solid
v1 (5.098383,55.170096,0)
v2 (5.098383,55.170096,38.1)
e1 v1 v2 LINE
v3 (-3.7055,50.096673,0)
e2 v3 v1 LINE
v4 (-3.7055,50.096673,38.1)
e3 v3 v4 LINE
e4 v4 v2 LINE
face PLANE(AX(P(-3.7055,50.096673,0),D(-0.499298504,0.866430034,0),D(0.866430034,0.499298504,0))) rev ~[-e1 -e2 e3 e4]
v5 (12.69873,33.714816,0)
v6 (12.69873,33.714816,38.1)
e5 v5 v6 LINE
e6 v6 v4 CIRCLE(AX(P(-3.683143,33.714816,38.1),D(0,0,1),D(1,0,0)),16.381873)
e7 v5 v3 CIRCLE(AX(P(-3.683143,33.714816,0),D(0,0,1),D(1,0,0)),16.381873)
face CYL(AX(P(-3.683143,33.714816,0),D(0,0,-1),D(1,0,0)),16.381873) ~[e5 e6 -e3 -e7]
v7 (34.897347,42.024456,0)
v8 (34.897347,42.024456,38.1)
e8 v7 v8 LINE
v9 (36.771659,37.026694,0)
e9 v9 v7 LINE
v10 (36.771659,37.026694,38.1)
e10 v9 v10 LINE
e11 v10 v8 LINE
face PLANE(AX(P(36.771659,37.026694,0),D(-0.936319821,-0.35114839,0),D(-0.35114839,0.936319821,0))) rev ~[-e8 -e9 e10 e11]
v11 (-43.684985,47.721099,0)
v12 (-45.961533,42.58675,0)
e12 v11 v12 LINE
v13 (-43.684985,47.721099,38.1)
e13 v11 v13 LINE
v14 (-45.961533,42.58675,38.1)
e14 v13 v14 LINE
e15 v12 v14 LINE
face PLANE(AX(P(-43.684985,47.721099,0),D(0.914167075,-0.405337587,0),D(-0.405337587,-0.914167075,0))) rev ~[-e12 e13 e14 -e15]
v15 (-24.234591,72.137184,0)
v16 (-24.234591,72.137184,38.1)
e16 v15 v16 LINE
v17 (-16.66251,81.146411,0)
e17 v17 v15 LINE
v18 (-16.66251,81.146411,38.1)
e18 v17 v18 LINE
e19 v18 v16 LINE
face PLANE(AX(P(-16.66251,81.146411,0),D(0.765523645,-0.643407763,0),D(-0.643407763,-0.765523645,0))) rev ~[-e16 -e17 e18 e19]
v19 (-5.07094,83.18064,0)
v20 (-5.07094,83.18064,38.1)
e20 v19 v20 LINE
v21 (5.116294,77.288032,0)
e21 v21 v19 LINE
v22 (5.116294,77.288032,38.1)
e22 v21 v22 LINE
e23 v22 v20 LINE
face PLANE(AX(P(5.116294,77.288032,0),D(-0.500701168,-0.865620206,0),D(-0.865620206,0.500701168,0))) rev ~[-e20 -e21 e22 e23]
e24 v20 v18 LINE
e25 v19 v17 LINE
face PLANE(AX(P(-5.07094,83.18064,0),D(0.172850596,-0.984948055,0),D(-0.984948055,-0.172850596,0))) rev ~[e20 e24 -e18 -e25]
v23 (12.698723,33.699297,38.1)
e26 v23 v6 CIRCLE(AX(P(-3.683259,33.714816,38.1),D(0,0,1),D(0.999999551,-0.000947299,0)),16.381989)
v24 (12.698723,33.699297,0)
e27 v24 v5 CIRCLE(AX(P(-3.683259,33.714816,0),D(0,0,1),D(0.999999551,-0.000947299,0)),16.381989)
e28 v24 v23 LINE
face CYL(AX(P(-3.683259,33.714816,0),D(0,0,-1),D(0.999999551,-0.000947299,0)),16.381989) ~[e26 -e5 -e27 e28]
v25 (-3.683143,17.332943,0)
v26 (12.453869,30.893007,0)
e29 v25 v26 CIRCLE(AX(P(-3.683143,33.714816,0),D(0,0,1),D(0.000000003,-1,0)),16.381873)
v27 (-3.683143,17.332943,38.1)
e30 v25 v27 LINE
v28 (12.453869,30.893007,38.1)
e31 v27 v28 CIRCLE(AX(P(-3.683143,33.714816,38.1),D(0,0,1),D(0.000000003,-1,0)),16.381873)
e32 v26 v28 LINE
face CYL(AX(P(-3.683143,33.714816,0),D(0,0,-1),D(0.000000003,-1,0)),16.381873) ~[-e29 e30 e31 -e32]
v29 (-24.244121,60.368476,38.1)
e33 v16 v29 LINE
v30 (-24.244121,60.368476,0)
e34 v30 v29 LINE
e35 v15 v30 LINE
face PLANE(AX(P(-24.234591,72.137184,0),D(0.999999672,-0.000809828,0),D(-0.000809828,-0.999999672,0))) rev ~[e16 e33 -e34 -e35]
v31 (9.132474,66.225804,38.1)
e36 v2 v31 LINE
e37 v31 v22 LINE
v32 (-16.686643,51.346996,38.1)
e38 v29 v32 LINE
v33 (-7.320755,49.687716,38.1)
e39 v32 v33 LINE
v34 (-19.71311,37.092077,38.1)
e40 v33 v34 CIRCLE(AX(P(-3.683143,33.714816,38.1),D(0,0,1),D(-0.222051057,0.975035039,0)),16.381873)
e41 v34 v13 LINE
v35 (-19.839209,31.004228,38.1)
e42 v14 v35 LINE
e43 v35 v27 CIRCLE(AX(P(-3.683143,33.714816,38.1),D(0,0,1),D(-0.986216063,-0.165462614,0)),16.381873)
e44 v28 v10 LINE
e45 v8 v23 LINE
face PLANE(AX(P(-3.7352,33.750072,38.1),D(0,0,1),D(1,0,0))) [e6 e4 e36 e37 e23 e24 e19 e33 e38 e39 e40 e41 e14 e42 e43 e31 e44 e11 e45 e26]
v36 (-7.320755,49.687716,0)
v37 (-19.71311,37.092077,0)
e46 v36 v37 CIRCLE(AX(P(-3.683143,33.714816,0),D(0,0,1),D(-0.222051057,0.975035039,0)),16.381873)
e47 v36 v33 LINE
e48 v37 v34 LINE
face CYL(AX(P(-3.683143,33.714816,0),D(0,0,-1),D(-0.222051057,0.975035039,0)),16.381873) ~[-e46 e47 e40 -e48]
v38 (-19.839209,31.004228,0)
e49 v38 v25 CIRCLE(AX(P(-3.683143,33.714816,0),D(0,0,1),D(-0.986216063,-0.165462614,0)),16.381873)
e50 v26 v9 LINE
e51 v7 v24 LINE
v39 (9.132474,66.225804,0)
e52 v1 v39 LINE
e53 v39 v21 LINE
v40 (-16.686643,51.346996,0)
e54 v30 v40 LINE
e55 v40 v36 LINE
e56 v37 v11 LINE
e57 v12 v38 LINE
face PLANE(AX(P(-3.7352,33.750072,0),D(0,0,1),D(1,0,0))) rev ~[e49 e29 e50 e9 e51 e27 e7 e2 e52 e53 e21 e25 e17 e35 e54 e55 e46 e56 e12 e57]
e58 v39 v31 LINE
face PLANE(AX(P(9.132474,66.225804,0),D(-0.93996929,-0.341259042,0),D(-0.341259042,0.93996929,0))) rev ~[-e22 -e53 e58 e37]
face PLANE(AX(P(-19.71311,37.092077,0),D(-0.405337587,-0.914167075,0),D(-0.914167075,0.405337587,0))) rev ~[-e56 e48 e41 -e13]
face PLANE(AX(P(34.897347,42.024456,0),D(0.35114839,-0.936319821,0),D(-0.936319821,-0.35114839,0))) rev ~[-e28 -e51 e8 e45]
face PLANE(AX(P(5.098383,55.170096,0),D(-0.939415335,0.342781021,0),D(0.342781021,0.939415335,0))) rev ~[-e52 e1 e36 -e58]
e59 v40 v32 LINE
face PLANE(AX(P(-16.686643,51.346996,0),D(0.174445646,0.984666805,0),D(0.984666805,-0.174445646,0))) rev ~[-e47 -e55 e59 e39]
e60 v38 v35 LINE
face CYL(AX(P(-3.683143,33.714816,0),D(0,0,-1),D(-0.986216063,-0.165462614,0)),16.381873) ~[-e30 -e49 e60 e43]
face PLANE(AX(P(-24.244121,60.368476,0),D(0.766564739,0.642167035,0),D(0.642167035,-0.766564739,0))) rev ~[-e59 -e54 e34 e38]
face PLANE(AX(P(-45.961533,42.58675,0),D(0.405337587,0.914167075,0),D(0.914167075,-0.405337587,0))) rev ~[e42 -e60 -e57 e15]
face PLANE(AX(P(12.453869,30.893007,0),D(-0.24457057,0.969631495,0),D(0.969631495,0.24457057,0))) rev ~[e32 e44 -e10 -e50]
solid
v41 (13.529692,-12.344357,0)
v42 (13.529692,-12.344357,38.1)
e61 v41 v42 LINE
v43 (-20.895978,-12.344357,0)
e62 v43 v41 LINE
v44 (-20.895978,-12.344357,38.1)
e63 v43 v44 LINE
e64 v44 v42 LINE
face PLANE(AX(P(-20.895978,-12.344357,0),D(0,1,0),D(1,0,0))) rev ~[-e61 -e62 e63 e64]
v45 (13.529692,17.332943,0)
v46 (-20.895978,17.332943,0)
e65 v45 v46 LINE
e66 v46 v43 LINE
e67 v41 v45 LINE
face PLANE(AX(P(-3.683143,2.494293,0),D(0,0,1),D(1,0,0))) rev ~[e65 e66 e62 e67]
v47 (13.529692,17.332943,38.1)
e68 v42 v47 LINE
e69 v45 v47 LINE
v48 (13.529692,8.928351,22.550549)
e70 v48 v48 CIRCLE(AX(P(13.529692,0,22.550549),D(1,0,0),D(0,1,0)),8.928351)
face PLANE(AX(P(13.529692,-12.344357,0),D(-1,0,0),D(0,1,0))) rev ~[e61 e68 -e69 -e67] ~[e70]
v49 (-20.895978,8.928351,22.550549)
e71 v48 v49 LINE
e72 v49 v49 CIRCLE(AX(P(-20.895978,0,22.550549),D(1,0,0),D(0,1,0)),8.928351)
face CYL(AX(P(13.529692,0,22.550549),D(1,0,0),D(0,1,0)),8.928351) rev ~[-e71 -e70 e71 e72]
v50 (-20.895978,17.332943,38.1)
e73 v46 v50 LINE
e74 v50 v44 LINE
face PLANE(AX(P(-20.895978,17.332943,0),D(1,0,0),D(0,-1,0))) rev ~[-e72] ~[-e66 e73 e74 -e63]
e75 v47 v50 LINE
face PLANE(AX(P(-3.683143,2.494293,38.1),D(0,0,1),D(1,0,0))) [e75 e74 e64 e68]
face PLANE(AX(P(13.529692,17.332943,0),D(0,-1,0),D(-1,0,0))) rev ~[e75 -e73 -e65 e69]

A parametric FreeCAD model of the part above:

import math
import FreeCAD as App
import Part
import Sketcher
Q = App.Units.Quantity

doc = App.newDocument("Part")
body = doc.addObject("PartDesign::Body", "Body")

# Sketch on XY plane
sketch1 = body.newObject("Sketcher::SketchObject", "Sketch")
sketch1.AttachmentSupport = (doc.getObject("XY_Plane"), [""])
sketch1.MapMode = "FlatFace"
sketch1.addGeometry(Part.ArcOfCircle(Part.Circle(App.Vector(-3.683143, 33.714816, 0), App.Vector(0, 0, 1), 16.381873), math.radians(-170.47589), math.radians(-90)), False)
sketch1.addGeometry(Part.ArcOfCircle(Part.Circle(App.Vector(-3.683143, 33.714816, 0), App.Vector(0, 0, 1), 16.381873), math.radians(-90), math.radians(-9.918775)), False)
sketch1.addGeometry(Part.LineSegment(App.Vector(12.453869, 30.893007, 0), App.Vector(36.771659, 37.026694, 0)), False)
sketch1.addGeometry(Part.LineSegment(App.Vector(36.771659, 37.026694, 0), App.Vector(34.897347, 42.024456, 0)), False)
sketch1.addGeometry(Part.LineSegment(App.Vector(34.897347, 42.024456, 0), App.Vector(12.698723, 33.699297, 0)), False)
sketch1.addGeometry(Part.ArcOfCircle(Part.Circle(App.Vector(-3.683259, 33.714816, 0), App.Vector(0, 0, 1), 16.381989), math.radians(-0.054276), math.radians(0)), False)
sketch1.addGeometry(Part.ArcOfCircle(Part.Circle(App.Vector(-3.683143, 33.714816, 0), App.Vector(0, 0, 1), 16.381873), math.radians(0), math.radians(90.078196)), False)
sketch1.addGeometry(Part.LineSegment(App.Vector(-3.7055, 50.096673, 0), App.Vector(5.098383, 55.170096, 0)), False)
sketch1.addGeometry(Part.LineSegment(App.Vector(5.098383, 55.170096, 0), App.Vector(9.132474, 66.225804, 0)), False)
sketch1.addGeometry(Part.LineSegment(App.Vector(9.132474, 66.225804, 0), App.Vector(5.116294, 77.288032, 0)), False)
sketch1.addGeometry(Part.LineSegment(App.Vector(5.116294, 77.288032, 0), App.Vector(-5.07094, 83.18064, 0)), False)
sketch1.addGeometry(Part.LineSegment(App.Vector(-5.07094, 83.18064, 0), App.Vector(-16.66251, 81.146411, 0)), False)
sketch1.addGeometry(Part.LineSegment(App.Vector(-16.66251, 81.146411, 0), App.Vector(-24.234591, 72.137184, 0)), False)
sketch1.addGeometry(Part.LineSegment(App.Vector(-24.234591, 72.137184, 0), App.Vector(-24.244121, 60.368476, 0)), False)
sketch1.addGeometry(Part.LineSegment(App.Vector(-24.244121, 60.368476, 0), App.Vector(-16.686643, 51.346996, 0)), False)
sketch1.addGeometry(Part.LineSegment(App.Vector(-16.686643, 51.346996, 0), App.Vector(-7.320755, 49.687716, 0)), False)
sketch1.addGeometry(Part.ArcOfCircle(Part.Circle(App.Vector(-3.683143, 33.714816, 0), App.Vector(0, 0, 1), 16.381873), math.radians(102.82953), math.radians(168.102679)), False)
sketch1.addGeometry(Part.LineSegment(App.Vector(-19.71311, 37.092077, 0), App.Vector(-43.684985, 47.721099, 0)), False)
sketch1.addGeometry(Part.LineSegment(App.Vector(-43.684985, 47.721099, 0), App.Vector(-45.961533, 42.58675, 0)), False)
sketch1.addGeometry(Part.LineSegment(App.Vector(-45.961533, 42.58675, 0), App.Vector(-19.839209, 31.004228, 0)), False)
sketch1.addConstraint(Sketcher.Constraint("Coincident", 0, 2, 1, 1))
sketch1.addConstraint(Sketcher.Constraint("Coincident", 1, 2, 2, 1))
sketch1.addConstraint(Sketcher.Constraint("Coincident", 2, 2, 3, 1))
sketch1.addConstraint(Sketcher.Constraint("Coincident", 3, 2, 4, 1))
sketch1.addConstraint(Sketcher.Constraint("Coincident", 4, 2, 5, 1))
sketch1.addConstraint(Sketcher.Constraint("Coincident", 5, 2, 6, 1))
sketch1.addConstraint(Sketcher.Constraint("Coincident", 6, 2, 7, 1))
sketch1.addConstraint(Sketcher.Constraint("Coincident", 7, 2, 8, 1))
sketch1.addConstraint(Sketcher.Constraint("Coincident", 8, 2, 9, 1))
sketch1.addConstraint(Sketcher.Constraint("Coincident", 9, 2, 10, 1))
sketch1.addConstraint(Sketcher.Constraint("Coincident", 10, 2, 11, 1))
sketch1.addConstraint(Sketcher.Constraint("Coincident", 11, 2, 12, 1))
sketch1.addConstraint(Sketcher.Constraint("Coincident", 12, 2, 13, 1))
sketch1.addConstraint(Sketcher.Constraint("Coincident", 13, 2, 14, 1))
sketch1.addConstraint(Sketcher.Constraint("Coincident", 14, 2, 15, 1))
sketch1.addConstraint(Sketcher.Constraint("Coincident", 15, 2, 16, 1))
sketch1.addConstraint(Sketcher.Constraint("Coincident", 16, 2, 17, 1))
sketch1.addConstraint(Sketcher.Constraint("Coincident", 17, 2, 18, 1))
sketch1.addConstraint(Sketcher.Constraint("Coincident", 18, 2, 19, 1))
sketch1.addConstraint(Sketcher.Constraint("Coincident", 19, 2, 0, 1))
sketch1.addConstraint(Sketcher.Constraint("Coincident", 1, 3, 0, 3))
sketch1.addConstraint(Sketcher.Constraint("Coincident", 6, 3, 0, 3))
sketch1.addConstraint(Sketcher.Constraint("Coincident", 16, 3, 0, 3))
sketch1.addConstraint(Sketcher.Constraint("Distance", 19, Q("1.125 in")))
sketch1.addConstraint(Sketcher.Constraint("Radius", 5, 16.381989))
sketch1.addConstraint(Sketcher.Constraint("Radius", 0, 16.381873))
sketch1.addConstraint(Sketcher.Constraint("Radius", 6, 16.381873))
sketch1.addConstraint(Sketcher.Constraint("Radius", 16, 16.381873))
sketch1.addConstraint(Sketcher.Constraint("Distance", 7, 10.161101))
sketch1.addConstraint(Sketcher.Constraint("DistanceX", 6, 2, -1, 1, 3.7055))
sketch1.addConstraint(Sketcher.Constraint("DistanceY", -1, 1, 17, 2, 47.721099))
sketch1.addConstraint(Sketcher.Constraint("DistanceX", 0, 3, 2, 2, 40.454802))
sketch1.addConstraint(Sketcher.Constraint("DistanceY", 4, 2, 7, 2, 21.470799))
sketch1.addConstraint(Sketcher.Constraint("DistanceX", 14, 2, 0, 3, 13.0035))
sketch1.addConstraint(Sketcher.Constraint("DistanceY", 5, 3, 15, 2, 15.9729))
sketch1.addConstraint(Sketcher.Constraint("DistanceY", 0, 3, 15, 2, 15.9729))
sketch1.addConstraint(Sketcher.Constraint("DistanceX", 19, 2, 16, 2, 0.126098))
sketch1.addConstraint(Sketcher.Constraint("Distance", 8, 11.768712))
sketch1.addConstraint(Sketcher.Constraint("Distance", 9, 11.768712))
sketch1.addConstraint(Sketcher.Constraint("Distance", 10, 11.768712))
sketch1.addConstraint(Sketcher.Constraint("Distance", 11, 11.768712))
sketch1.addConstraint(Sketcher.Constraint("Distance", 12, 11.768712))
sketch1.addConstraint(Sketcher.Constraint("Distance", 13, 11.768712))
sketch1.addConstraint(Sketcher.Constraint("Distance", 14, 11.768712))
sketch1.addConstraint(Sketcher.Constraint("Distance", 17, 26.222641))
sketch1.addConstraint(Sketcher.Constraint("DistanceX", 5, 3, -1, 1, 3.683259))
sketch1.addConstraint(Sketcher.Constraint("DistanceX", -1, 1, 1, 2, 12.453869))
sketch1.addConstraint(Sketcher.Constraint("DistanceY", -1, 1, 9, 2, 77.288032))
sketch1.addConstraint(Sketcher.Constraint("DistanceX", 10, 2, -1, 1, 5.07094))
sketch1.addConstraint(Sketcher.Constraint("DistanceY", -1, 1, 10, 2, 83.18064))
sketch1.addConstraint(Sketcher.Constraint("DistanceX", 11, 2, -1, 1, 16.66251))
sketch1.addConstraint(Sketcher.Constraint("DistanceX", 12, 2, -1, 1, 24.234591))
sketch1.addConstraint(Sketcher.Constraint("DistanceX", 13, 2, -1, 1, 24.244121))
sketch1.addConstraint(Sketcher.Constraint("DistanceX", 16, 2, -1, 1, 19.71311))
sketch1.addConstraint(Sketcher.Constraint("DistanceY", -1, 1, 18, 2, 42.58675))
sketch1.addConstraint(Sketcher.Constraint("DistanceY", -1, 1, 19, 2, 31.004228))
sketch1.addConstraint(Sketcher.Constraint("DistanceY", 0, 3, 2, 2, 3.311878))
sketch1.addConstraint(Sketcher.Constraint("DistanceY", 2, 2, 3, 2, 4.997762))
sketch1.addConstraint(Sketcher.Constraint("DistanceX", 0, 3, 3, 2, 38.580489))
sketch1.addConstraint(Sketcher.Constraint("DistanceY", 1, 2, 4, 2, 2.80629))
sketch1.addConstraint(Sketcher.Constraint("DistanceY", 4, 2, 5, 2, 0.015519))
sketch1.addConstraint(Sketcher.Constraint("DistanceX", 0, 2, -1, 1, 3.683143))
pad1 = body.newObject("PartDesign::Pad", "Pad")
pad1.Profile = sketch1
pad1.Length = Q("1.5 in")
body2 = doc.addObject("PartDesign::Body", "Body001")

# Sketch on XY plane
sketch2 = body2.newObject("Sketcher::SketchObject", "Sketch001")
sketch2.AttachmentSupport = (doc.getObject("XY_Plane001"), [""])
sketch2.MapMode = "FlatFace"
sketch2.addGeometry(Part.LineSegment(App.Vector(-20.895978, 17.332943, 0), App.Vector(-20.895978, -12.344357, 0)), False)
sketch2.addGeometry(Part.LineSegment(App.Vector(-20.895978, -12.344357, 0), App.Vector(13.529692, -12.344357, 0)), False)
sketch2.addGeometry(Part.LineSegment(App.Vector(13.529692, -12.344357, 0), App.Vector(13.529692, 17.332943, 0)), False)
sketch2.addGeometry(Part.LineSegment(App.Vector(13.529692, 17.332943, 0), App.Vector(-20.895978, 17.332943, 0)), False)
sketch2.addConstraint(Sketcher.Constraint("Coincident", 0, 2, 1, 1))
sketch2.addConstraint(Sketcher.Constraint("Coincident", 1, 2, 2, 1))
sketch2.addConstraint(Sketcher.Constraint("Coincident", 2, 2, 3, 1))
sketch2.addConstraint(Sketcher.Constraint("Coincident", 3, 2, 0, 1))
sketch2.addConstraint(Sketcher.Constraint("Vertical", 0))
sketch2.addConstraint(Sketcher.Constraint("Horizontal", 1))
sketch2.addConstraint(Sketcher.Constraint("Vertical", 2))
sketch2.addConstraint(Sketcher.Constraint("Horizontal", 3))
sketch2.addConstraint(Sketcher.Constraint("DistanceY", 0, 2, 0, 1, 29.6773))
sketch2.addConstraint(Sketcher.Constraint("DistanceX", 1, 1, 1, 2, 34.42567))
sketch2.addConstraint(Sketcher.Constraint("DistanceX", 0, 2, -1, 1, 20.895978))
sketch2.addConstraint(Sketcher.Constraint("DistanceY", 0, 2, -1, 1, 12.344357))
pad2 = body2.newObject("PartDesign::Pad", "Pad001")
pad2.Profile = sketch2
pad2.Length = Q("1.5 in")

# Sketch on YZ plane
sketch3 = body2.newObject("Sketcher::SketchObject", "Sketch002")
sketch3.AttachmentSupport = (doc.getObject("YZ_Plane001"), [""])
sketch3.MapMode = "FlatFace"
sketch3.AttachmentOffset = App.Placement(App.Vector(0, 0, 13.529692), App.Rotation())
sketch3.addGeometry(Part.Circle(App.Vector(0, 22.550549, 0), App.Vector(0, 0, 1), 8.928351), False)
sketch3.addConstraint(Sketcher.Constraint("PointOnObject", 0, 3, -2))
sketch3.addConstraint(Sketcher.Constraint("Diameter", 0, 17.856702))
sketch3.addConstraint(Sketcher.Constraint("DistanceY", -1, 1, 0, 3, 22.550549))
pocket1 = body2.newObject("PartDesign::Pocket", "Pocket")
pocket1.Profile = sketch3
pocket1.Length = Q("3 in")

doc.recompute()
